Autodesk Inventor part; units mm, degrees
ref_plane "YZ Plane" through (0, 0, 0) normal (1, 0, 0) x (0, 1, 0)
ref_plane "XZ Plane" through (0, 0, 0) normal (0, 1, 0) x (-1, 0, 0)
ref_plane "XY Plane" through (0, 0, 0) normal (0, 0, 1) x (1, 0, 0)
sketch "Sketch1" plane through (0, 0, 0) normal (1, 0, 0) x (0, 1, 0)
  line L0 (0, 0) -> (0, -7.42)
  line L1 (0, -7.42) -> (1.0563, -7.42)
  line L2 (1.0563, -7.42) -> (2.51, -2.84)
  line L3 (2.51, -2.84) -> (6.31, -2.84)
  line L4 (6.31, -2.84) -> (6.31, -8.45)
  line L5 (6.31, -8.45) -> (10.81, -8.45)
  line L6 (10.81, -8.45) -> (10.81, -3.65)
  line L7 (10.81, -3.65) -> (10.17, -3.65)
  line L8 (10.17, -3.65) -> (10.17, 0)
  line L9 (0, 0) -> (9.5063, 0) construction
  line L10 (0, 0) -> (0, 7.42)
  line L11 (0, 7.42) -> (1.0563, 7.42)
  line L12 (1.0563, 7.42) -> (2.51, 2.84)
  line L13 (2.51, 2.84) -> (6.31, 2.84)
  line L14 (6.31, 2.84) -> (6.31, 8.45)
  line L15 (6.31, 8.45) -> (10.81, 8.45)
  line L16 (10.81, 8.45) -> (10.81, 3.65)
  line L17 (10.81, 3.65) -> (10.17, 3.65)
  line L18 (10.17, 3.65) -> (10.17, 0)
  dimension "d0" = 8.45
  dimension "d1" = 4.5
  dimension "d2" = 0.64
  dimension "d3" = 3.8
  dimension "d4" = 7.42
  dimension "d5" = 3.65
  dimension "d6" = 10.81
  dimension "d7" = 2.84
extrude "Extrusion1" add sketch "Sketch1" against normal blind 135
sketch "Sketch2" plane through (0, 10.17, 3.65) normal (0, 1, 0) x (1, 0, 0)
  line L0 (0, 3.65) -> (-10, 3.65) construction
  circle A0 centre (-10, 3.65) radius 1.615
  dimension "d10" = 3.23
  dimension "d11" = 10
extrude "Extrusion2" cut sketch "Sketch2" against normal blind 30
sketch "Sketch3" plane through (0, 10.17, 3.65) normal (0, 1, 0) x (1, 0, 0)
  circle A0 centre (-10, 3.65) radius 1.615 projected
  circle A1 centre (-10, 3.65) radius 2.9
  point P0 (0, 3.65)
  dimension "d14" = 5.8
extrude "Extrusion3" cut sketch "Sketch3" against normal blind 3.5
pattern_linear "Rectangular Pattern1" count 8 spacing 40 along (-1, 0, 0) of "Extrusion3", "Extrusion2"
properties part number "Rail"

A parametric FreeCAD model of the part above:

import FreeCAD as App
import Part
import Sketcher

V = App.Vector
Q = App.Units.Quantity


def add_polygon(sketch, points):
    """Adds a closed chain of lines whose ends are joined by coincident constraints."""
    first, n = sketch.GeometryCount, len(points)
    for a, b in zip(points, points[1:] + points[:1]):
        sketch.addGeometry(Part.LineSegment(App.Vector(*a, 0), App.Vector(*b, 0)), False)
    for i in range(n):
        sketch.addConstraint(Sketcher.Constraint("Coincident", first + i, 2, first + (i + 1) % n, 1))

doc = App.newDocument("Part")
params = doc.addObject("Spreadsheet::Sheet", "Params")
for row, (alias, value) in enumerate([
    ("sketch1_width", "3.8 mm"),
    ("sketch1_width2", "4.5 mm"),
    ("sketch1_width3", "0.64 mm"),
    ("pad1_length", "135 mm"),
    ("sketch2_diameter", "3.23 mm"),
    ("pocket1_length", "30 mm"),
    ("sketch3_diameter", "5.8 mm"),
    ("sketch3_diameter2", "3.23 mm"),
    ("pocket2_length", "3.5 mm"),
    ("linearpattern_pitch", "40 mm"),
], start=1):
    params.set(f"A{row}", alias)
    params.set(f"B{row}", "=" + value)
    params.setAlias(f"B{row}", alias)

body = doc.addObject("PartDesign::Body", "Body")

# Sketch on YZ plane
sketch1 = body.newObject("Sketcher::SketchObject", "Sketch")
sketch1.AttachmentSupport = (doc.getObject("YZ_Plane"), [""])
sketch1.MapMode = "FlatFace"
add_polygon(sketch1, [(0, 7.4), (0, -7.4), (1.1, -7.4), (2.5, -2.8), (6.3, -2.8), (6.3, -8.4), (10.8, -8.4), (10.8, -3.6), (10.2, -3.6), (10.2, 3.6), (10.8, 3.6), (10.8, 8.4), (6.3, 8.4), (6.3, 2.8), (2.5, 2.8), (1.1, 7.4)])  # lines 0-15
sketch1.addConstraint([
    Sketcher.Constraint("Vertical", 0),
    Sketcher.Constraint("Horizontal", 1),
    Sketcher.Constraint("Horizontal", 3),
    Sketcher.Constraint("Vertical", 4),
    Sketcher.Constraint("Horizontal", 5),
    Sketcher.Constraint("Vertical", 6),
    Sketcher.Constraint("Horizontal", 7),
    Sketcher.Constraint("Vertical", 8),
    Sketcher.Constraint("Horizontal", 9),
    Sketcher.Constraint("Vertical", 10),
    Sketcher.Constraint("Horizontal", 11),
    Sketcher.Constraint("Vertical", 12),
    Sketcher.Constraint("Horizontal", 13),
    Sketcher.Constraint("Horizontal", 15),
    Sketcher.Constraint("Symmetric", 0, 2, 15, 2, -1, 1),
    Sketcher.Constraint("Symmetric", 6, 2, 9, 2, -1),
    Sketcher.Constraint("Symmetric", 4, 2, 11, 2, -1),
    Sketcher.Constraint("Symmetric", 2, 2, 13, 2, -1),
    Sketcher.Constraint("Vertical", 1, 2, 14, 2),
    Sketcher.Constraint("DistanceX", 3, 1, 3, 2, Q("3.8 mm")),
    Sketcher.Constraint("DistanceX", 5, 1, 5, 2, Q("4.5 mm")),
    Sketcher.Constraint("DistanceX", 7, 2, 7, 1, Q("0.64 mm")),
    Sketcher.Constraint("DistanceY", 0, 2, -1, 1, Q("7.42 mm")),
    Sketcher.Constraint("DistanceY", 2, 2, -1, 1, Q("2.84 mm")),
    Sketcher.Constraint("DistanceY", 4, 2, -1, 1, Q("8.45 mm")),
    Sketcher.Constraint("DistanceX", -1, 1, 5, 2, Q("10.81 mm")),
    Sketcher.Constraint("DistanceY", 6, 2, -1, 1, Q("3.65 mm")),
    Sketcher.Constraint("Angle", 2, Q("72.3905 deg")),
])
sketch1.setExpression("Constraints[35]", "Params.sketch1_width")
sketch1.setExpression("Constraints[36]", "Params.sketch1_width2")
sketch1.setExpression("Constraints[37]", "Params.sketch1_width3")
pad1 = body.newObject("PartDesign::Pad", "Pad")
pad1.Profile = sketch1
pad1.setExpression("Length", "Params.pad1_length")
pad1.Reversed = True

# Sketch on XZ plane
sketch2 = body.newObject("Sketcher::SketchObject", "Sketch001")
sketch2.AttachmentSupport = (doc.getObject("XZ_Plane"), [""])
sketch2.MapMode = "FlatFace"
sketch2.AttachmentOffset = App.Placement(V(0, 0, -10.17), App.Rotation())
sketch2.addGeometry(Part.Circle(V(-10, 0, 0), V(0, 0, 1), 1.6), False)
sketch2.addConstraint([
    Sketcher.Constraint("PointOnObject", 0, 3, -1),
    Sketcher.Constraint("Diameter", 0, Q("3.23 mm")),
    Sketcher.Constraint("DistanceX", 0, 3, -1, 1, Q("10 mm")),
])
sketch2.setExpression("Constraints[1]", "Params.sketch2_diameter")
pocket1 = body.newObject("PartDesign::Pocket", "Pocket")
pocket1.Profile = sketch2
pocket1.setExpression("Length", "Params.pocket1_length")
pocket1.Reversed = True

# Sketch on XZ plane
sketch3 = body.newObject("Sketcher::SketchObject", "Sketch002")
sketch3.AttachmentSupport = (doc.getObject("XZ_Plane"), [""])
sketch3.MapMode = "FlatFace"
sketch3.AttachmentOffset = App.Placement(V(0, 0, -10.17), App.Rotation())
sketch3.addGeometry([
    Part.Circle(V(-10, 0, 0), V(0, 0, 1), 2.9),
    Part.Circle(V(-10, 0, 0), V(0, 0, 1), 1.6),
], False)
sketch3.addConstraint([
    Sketcher.Constraint("Coincident", 1, 3, 0, 3),
    Sketcher.Constraint("PointOnObject", 0, 3, -1),
    Sketcher.Constraint("Diameter", 0, Q("5.8 mm")),
    Sketcher.Constraint("Diameter", 1, Q("3.23 mm")),
    Sketcher.Constraint("DistanceX", 0, 3, -1, 1, Q("10 mm")),
])
sketch3.setExpression("Constraints[2]", "Params.sketch3_diameter")
sketch3.setExpression("Constraints[3]", "Params.sketch3_diameter2")
pocket2 = body.newObject("PartDesign::Pocket", "Pocket001")
pocket2.Profile = sketch3
pocket2.setExpression("Length", "Params.pocket2_length")
pocket2.Reversed = True
doc.recompute()

linearpattern = body.newObject("PartDesign::LinearPattern", "LinearPattern")
linearpattern.Originals = [pocket2, pocket1]
linearpattern.Direction = (doc.getObject("X_Axis"), [""])
linearpattern.Mode = "offset"
linearpattern.setExpression("Offset", "Params.linearpattern_pitch")
linearpattern.Occurrences = 8
linearpattern.Reversed = True
body.Tip = linearpattern

doc.recompute()
